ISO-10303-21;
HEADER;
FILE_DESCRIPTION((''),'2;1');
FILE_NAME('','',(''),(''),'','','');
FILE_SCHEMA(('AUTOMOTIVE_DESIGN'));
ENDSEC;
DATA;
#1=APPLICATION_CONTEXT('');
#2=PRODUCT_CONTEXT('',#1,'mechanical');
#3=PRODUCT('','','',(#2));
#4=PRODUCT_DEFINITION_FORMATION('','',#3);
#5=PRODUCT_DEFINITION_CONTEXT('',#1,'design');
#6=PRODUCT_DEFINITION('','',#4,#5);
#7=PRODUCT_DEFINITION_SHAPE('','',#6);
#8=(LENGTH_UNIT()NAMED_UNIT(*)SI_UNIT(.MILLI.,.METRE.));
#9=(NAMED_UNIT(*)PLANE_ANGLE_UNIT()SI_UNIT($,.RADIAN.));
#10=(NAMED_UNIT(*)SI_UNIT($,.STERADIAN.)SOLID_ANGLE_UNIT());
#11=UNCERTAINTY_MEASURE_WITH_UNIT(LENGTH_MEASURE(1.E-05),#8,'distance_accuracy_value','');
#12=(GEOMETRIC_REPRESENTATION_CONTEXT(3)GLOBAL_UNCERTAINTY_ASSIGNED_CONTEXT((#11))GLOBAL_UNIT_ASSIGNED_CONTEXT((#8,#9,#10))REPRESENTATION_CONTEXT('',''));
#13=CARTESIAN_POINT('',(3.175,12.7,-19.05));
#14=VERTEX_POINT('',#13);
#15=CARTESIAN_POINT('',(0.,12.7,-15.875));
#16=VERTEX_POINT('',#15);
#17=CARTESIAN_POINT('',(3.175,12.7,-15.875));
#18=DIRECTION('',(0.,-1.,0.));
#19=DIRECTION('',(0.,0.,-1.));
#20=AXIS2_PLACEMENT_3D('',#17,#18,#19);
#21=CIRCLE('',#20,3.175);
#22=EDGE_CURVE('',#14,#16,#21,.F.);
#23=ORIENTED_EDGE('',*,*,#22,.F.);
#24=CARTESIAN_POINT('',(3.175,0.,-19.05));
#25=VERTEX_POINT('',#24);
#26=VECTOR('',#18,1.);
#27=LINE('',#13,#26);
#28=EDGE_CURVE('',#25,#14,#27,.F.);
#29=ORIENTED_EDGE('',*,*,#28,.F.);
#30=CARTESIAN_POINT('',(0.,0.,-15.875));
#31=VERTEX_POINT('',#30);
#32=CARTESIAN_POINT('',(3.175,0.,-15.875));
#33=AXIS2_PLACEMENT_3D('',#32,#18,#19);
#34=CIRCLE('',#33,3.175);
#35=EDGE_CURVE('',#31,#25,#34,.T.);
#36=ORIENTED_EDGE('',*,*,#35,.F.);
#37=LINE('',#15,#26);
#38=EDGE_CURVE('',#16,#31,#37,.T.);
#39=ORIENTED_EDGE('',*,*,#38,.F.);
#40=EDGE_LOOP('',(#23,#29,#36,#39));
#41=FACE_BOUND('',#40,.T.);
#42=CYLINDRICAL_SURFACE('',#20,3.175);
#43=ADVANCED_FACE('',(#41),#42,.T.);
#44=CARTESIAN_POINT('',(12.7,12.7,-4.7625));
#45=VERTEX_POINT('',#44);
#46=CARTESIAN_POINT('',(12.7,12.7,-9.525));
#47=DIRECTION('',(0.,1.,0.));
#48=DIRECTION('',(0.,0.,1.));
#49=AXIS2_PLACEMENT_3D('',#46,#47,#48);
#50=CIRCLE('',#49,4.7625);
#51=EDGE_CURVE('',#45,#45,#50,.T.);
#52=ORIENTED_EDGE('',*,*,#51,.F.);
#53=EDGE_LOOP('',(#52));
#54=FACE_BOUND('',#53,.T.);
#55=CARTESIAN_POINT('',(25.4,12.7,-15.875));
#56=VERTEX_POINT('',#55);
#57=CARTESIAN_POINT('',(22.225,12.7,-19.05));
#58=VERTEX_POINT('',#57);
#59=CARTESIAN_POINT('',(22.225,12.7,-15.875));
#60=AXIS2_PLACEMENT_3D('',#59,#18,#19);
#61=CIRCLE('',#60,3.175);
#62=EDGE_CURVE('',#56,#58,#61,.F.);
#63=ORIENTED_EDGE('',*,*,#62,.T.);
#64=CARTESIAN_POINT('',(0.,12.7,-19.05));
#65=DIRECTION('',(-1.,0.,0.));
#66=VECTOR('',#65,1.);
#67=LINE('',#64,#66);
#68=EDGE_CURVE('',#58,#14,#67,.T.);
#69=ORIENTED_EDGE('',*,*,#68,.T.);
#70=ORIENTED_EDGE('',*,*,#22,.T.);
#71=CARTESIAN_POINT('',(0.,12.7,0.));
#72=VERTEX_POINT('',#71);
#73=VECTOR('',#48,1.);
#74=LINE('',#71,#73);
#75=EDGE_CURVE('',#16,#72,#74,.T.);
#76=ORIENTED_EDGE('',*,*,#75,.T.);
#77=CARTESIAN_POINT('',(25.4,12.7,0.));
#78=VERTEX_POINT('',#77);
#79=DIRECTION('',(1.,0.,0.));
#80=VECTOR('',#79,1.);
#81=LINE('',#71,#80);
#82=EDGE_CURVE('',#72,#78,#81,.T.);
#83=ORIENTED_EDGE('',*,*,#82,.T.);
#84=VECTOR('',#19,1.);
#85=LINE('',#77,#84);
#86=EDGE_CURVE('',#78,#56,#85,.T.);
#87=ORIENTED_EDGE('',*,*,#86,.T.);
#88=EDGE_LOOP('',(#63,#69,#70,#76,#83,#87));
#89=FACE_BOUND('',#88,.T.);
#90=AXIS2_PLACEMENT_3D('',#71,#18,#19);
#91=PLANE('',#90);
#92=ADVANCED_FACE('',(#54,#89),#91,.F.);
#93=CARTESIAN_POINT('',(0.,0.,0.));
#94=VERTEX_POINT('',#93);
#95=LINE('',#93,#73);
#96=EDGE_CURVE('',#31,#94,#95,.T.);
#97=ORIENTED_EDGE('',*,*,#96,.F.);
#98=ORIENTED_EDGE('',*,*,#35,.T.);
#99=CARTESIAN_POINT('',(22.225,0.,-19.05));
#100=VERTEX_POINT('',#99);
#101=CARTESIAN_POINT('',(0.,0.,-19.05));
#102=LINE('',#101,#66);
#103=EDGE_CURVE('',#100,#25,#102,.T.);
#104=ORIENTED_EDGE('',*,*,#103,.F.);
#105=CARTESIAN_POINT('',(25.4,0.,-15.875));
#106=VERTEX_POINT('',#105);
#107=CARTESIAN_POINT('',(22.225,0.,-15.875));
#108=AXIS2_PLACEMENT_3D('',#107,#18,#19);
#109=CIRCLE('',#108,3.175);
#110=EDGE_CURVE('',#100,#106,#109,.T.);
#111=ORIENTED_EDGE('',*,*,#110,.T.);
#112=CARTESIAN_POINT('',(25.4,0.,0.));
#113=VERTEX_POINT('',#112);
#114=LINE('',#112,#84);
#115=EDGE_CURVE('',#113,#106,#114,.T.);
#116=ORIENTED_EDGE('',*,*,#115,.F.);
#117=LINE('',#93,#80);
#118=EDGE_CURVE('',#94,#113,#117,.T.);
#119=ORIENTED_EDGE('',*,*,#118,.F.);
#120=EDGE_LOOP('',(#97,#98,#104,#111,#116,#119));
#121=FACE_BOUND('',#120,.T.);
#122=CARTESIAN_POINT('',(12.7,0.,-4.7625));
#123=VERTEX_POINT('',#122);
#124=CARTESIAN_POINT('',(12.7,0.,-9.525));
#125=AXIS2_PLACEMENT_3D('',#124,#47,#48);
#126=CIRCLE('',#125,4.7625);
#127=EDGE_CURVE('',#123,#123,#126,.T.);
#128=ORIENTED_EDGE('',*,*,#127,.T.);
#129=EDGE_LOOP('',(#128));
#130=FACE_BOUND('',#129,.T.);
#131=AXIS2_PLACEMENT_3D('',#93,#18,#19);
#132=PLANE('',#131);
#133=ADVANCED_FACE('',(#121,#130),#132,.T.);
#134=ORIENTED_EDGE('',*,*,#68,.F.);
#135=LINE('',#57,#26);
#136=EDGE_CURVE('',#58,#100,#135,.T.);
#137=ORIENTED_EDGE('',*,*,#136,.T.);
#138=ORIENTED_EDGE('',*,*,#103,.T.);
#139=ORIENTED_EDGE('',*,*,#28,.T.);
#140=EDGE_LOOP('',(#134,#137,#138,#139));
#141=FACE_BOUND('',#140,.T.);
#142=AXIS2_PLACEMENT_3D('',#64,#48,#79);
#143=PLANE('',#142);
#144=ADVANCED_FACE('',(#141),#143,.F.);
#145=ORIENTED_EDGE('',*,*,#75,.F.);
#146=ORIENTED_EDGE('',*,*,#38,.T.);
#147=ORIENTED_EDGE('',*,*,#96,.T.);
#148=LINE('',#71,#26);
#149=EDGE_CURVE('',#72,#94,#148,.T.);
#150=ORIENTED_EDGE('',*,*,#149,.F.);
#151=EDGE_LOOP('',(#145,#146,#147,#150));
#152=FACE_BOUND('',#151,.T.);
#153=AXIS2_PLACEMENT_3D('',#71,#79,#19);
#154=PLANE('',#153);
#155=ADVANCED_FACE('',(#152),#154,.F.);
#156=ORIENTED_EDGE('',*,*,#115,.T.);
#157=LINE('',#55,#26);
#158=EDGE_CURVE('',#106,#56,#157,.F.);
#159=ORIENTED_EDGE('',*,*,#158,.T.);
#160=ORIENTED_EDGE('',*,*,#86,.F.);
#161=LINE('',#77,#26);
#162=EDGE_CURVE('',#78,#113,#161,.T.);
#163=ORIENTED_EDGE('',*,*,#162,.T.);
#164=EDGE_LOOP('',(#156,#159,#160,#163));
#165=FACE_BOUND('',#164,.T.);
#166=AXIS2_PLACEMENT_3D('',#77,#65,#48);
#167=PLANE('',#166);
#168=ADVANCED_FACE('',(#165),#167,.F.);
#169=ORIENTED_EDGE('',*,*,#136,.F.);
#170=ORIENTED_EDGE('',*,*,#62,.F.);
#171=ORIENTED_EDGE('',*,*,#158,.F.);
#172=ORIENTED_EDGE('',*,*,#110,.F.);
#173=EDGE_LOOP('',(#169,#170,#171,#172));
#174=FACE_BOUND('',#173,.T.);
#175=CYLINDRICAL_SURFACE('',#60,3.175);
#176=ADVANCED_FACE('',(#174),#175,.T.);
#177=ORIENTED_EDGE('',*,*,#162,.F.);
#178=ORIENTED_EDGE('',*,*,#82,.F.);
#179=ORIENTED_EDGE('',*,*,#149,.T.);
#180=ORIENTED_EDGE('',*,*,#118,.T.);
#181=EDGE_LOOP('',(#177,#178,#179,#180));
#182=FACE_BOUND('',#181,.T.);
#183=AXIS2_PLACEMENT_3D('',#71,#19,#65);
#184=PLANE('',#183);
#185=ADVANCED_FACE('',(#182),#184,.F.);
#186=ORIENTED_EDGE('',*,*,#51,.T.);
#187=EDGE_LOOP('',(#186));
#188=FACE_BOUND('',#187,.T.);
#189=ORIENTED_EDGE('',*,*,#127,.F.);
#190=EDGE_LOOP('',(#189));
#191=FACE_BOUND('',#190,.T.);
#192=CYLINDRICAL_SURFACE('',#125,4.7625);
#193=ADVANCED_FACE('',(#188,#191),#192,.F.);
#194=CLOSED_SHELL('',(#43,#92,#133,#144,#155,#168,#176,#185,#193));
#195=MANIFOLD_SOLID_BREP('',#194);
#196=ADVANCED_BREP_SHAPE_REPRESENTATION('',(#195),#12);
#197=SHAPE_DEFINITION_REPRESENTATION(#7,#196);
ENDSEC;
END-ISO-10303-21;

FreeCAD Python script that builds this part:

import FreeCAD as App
import Part
import Sketcher
Q = App.Units.Quantity


def edges_at(feature, points):
    """Names of the edges that pass closest to the given points."""
    edges = feature.Shape.Edges
    near = lambda p: min(range(len(edges)), key=lambda i: edges[i].distToShape(Part.Vertex(*p))[0])
    return sorted({f"Edge{near(p) + 1}" for p in points})


def add_polygon(sketch, points):
    """Adds a closed chain of lines whose ends are joined by coincident constraints."""
    first, n = sketch.GeometryCount, len(points)
    for a, b in zip(points, points[1:] + points[:1]):
        sketch.addGeometry(Part.LineSegment(App.Vector(*a, 0), App.Vector(*b, 0)), False)
    for i in range(n):
        sketch.addConstraint(Sketcher.Constraint("Coincident", first + i, 2, first + (i + 1) % n, 1))

doc = App.newDocument("Part")
body = doc.addObject("PartDesign::Body", "Body")

# Sketch on XZ plane
sketch1 = doc.addObject("Sketcher::SketchObject", "Sketch")
body.addObject(sketch1)
sketch1.AttachmentSupport = (doc.XZ_Plane, [""])
sketch1.MapMode = "FlatFace"
add_polygon(sketch1, [(0, -19), (0, 0), (25, 0), (25, -19)])  # lines 0-3
sketch1.addConstraint(Sketcher.Constraint("Vertical", 0))
sketch1.addConstraint(Sketcher.Constraint("Horizontal", 1))
sketch1.addConstraint(Sketcher.Constraint("Vertical", 2))
sketch1.addConstraint(Sketcher.Constraint("Horizontal", 3))
sketch1.addConstraint(Sketcher.Constraint("Coincident", 0, 2, -1, 1))
sketch1.addConstraint(Sketcher.Constraint("DistanceX", 1, 1, 1, 2, Q("1 in")))
sketch1.addConstraint(Sketcher.Constraint("DistanceY", 0, 1, 0, 2, Q("0.75 in")))
pad1 = doc.addObject("PartDesign::Pad", "Pad")
body.addObject(pad1)
pad1.Profile = sketch1
pad1.Length = Q("0.5 in")
pad1.Reversed = True

# Sketch on XZ plane
sketch2 = doc.addObject("Sketcher::SketchObject", "Sketch001")
body.addObject(sketch2)
sketch2.AttachmentSupport = (doc.XZ_Plane, [""])
sketch2.MapMode = "FlatFace"
sketch2.AttachmentOffset = App.Placement(App.Vector(0, 0, -0.5 * 25.4), App.Rotation())
sketch2.addGeometry(Part.Circle(App.Vector(12.7, -9.5, 0), App.Vector(0, 0, 1), 4.8), False)
sketch2.addConstraint(Sketcher.Constraint("Diameter", 0, Q("0.375 in")))
sketch2.addConstraint(Sketcher.Constraint("DistanceX", -1, 1, 0, 3, Q("0.5 in")))
sketch2.addConstraint(Sketcher.Constraint("DistanceY", 0, 3, -1, 1, Q("0.375 in")))
pocket1 = doc.addObject("PartDesign::Pocket", "Pocket")
body.addObject(pocket1)
pocket1.Profile = sketch2
pocket1.Type = "ThroughAll"
pocket1.Reversed = True
doc.recompute()

fillet = doc.addObject("PartDesign::Fillet", "Fillet")
body.addObject(fillet)
fillet.Base = (pocket1, edges_at(pocket1, [(0, 6.35, -19.05), (25.4, 6.35, -19.05)]))
fillet.Radius = Q("0.125 in")

doc.recompute()
